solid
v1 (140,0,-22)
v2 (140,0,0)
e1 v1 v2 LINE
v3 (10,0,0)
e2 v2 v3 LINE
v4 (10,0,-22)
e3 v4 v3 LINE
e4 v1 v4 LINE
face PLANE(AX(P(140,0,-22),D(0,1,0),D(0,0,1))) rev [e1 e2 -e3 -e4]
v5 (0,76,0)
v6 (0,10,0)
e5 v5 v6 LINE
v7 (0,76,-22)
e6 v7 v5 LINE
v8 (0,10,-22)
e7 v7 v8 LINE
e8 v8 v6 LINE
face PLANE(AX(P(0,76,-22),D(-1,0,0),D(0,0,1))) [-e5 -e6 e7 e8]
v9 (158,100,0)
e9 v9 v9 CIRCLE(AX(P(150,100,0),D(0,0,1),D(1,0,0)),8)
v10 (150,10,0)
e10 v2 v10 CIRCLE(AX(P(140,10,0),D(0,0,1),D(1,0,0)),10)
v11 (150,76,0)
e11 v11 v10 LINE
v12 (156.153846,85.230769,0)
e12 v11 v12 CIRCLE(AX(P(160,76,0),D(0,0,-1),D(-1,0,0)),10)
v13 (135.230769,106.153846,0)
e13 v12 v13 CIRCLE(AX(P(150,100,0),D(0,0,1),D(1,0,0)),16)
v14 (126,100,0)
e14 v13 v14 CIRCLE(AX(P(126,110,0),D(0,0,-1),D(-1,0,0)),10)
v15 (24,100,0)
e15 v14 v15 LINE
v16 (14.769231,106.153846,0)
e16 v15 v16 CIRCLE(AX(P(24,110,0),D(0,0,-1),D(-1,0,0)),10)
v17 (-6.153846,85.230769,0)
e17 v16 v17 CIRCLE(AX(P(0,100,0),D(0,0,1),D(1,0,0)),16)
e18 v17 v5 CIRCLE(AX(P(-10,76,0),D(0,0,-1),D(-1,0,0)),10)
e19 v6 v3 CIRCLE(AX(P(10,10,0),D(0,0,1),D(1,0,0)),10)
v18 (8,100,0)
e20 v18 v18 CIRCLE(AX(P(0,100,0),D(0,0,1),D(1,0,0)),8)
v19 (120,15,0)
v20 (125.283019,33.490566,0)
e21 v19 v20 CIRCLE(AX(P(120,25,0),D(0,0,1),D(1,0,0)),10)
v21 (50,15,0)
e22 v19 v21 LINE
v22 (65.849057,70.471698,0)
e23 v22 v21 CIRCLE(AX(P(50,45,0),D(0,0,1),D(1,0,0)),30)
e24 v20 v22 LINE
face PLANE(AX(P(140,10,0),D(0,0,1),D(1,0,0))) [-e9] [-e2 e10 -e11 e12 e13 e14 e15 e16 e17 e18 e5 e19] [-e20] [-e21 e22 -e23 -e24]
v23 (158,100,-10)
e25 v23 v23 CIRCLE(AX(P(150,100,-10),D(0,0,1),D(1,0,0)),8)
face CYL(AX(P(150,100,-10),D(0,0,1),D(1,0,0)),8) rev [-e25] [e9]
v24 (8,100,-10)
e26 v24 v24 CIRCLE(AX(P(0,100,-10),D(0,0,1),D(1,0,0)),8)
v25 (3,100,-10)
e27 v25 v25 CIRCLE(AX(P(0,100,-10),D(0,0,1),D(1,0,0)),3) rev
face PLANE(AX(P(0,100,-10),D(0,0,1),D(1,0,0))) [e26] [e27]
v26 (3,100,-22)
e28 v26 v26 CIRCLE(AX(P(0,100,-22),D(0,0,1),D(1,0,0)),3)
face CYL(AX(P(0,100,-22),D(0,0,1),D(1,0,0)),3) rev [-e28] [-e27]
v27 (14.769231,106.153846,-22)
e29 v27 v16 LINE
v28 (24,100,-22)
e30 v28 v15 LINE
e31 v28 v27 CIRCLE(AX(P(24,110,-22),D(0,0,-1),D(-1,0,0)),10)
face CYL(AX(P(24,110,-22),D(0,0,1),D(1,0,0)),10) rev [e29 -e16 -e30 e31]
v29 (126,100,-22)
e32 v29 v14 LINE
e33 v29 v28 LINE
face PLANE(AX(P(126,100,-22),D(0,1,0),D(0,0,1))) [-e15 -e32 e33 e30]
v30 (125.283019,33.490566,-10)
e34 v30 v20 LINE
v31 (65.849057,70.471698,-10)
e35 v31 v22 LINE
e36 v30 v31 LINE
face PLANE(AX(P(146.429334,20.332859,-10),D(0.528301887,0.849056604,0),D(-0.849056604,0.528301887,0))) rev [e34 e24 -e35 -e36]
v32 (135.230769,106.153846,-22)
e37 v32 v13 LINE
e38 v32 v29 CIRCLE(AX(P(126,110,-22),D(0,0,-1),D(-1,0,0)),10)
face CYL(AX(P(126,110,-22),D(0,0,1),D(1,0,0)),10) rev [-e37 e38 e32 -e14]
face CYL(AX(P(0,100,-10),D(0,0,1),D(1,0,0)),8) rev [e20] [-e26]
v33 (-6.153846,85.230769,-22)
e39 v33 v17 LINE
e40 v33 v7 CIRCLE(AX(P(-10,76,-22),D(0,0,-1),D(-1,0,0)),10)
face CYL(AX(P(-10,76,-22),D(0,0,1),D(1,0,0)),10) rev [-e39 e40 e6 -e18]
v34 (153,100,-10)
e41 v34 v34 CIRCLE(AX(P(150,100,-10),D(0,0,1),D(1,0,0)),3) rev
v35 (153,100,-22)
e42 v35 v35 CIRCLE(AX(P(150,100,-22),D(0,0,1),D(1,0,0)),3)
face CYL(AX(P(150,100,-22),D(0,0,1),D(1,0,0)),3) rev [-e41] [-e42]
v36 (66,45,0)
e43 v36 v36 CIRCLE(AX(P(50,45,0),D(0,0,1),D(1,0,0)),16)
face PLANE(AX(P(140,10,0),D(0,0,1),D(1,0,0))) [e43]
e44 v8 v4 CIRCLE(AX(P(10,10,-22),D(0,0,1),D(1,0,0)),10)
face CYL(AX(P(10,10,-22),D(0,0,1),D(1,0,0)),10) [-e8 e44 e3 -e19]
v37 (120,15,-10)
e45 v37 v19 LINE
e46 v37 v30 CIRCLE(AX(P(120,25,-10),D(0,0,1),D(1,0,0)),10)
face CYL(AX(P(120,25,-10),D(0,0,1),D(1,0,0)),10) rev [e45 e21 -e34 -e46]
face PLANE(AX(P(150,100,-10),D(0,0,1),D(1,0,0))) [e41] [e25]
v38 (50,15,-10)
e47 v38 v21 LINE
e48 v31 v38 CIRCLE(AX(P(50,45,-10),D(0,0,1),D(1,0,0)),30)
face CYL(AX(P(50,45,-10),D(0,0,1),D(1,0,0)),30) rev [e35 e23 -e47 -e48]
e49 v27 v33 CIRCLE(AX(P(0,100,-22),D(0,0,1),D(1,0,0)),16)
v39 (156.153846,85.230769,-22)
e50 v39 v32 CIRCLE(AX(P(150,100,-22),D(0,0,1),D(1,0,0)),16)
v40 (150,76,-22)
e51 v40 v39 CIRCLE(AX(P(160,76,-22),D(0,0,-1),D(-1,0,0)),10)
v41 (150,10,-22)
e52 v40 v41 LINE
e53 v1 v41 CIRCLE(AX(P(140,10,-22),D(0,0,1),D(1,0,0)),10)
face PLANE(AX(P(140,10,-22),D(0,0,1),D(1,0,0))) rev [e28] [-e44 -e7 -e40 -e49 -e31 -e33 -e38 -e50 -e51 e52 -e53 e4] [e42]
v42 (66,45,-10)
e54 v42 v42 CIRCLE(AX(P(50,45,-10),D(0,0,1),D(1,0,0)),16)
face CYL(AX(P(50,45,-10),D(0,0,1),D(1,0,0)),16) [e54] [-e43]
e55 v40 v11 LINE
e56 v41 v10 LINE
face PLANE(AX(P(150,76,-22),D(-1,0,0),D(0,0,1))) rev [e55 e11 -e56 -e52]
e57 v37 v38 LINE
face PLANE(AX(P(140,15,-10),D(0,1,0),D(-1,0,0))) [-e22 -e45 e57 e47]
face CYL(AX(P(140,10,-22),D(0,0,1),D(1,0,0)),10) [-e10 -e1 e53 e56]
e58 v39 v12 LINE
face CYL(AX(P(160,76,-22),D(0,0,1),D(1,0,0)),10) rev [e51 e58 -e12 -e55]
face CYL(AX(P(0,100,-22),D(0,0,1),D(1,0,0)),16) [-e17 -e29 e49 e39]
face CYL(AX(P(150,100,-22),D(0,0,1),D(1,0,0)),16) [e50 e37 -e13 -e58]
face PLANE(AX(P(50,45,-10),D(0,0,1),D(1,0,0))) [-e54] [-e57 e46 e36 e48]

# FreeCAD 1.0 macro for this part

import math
import FreeCAD as App
import Part
import Sketcher

V = App.Vector
Q = App.Units.Quantity

doc = App.newDocument("Part")
body = doc.addObject("PartDesign::Body", "Body")

# Sketch on XY plane
sketch1 = body.newObject("Sketcher::SketchObject", "Sketch")
sketch1.AttachmentSupport = (doc.getObject("XY_Plane"), [""])
sketch1.MapMode = "FlatFace"
sketch1.addGeometry([
    Part.LineSegment(V(126, 100, 0), V(24, 100, 0)),  # 0
    Part.ArcOfCircle(Part.Circle(V(24, 110, 0), V(0, 0, 1), 10), math.radians(-157), math.radians(-90)),  # 1
    Part.ArcOfCircle(Part.Circle(V(0, 100, 0), V(0, 0, 1), 16), math.radians(23), math.radians(247)),  # 2
    Part.ArcOfCircle(Part.Circle(V(-10, 76, 0), V(0, 0, 1), 10), math.radians(0), math.radians(67)),  # 3
    Part.LineSegment(V(0, 76, 0), V(0, 10, 0)),  # 4
    Part.ArcOfCircle(Part.Circle(V(10, 10, 0), V(0, 0, 1), 10), math.radians(180), math.radians(270)),  # 5
    Part.LineSegment(V(10, 0, 0), V(140, 0, 0)),  # 6
    Part.ArcOfCircle(Part.Circle(V(140, 10, 0), V(0, 0, 1), 10), math.radians(-90), math.radians(0)),  # 7
    Part.LineSegment(V(150, 10, 0), V(150, 76, 0)),  # 8
    Part.ArcOfCircle(Part.Circle(V(160, 76, 0), V(0, 0, 1), 10), math.radians(113), math.radians(180)),  # 9
    Part.ArcOfCircle(Part.Circle(V(150, 100, 0), V(0, 0, 1), 16), math.radians(-67), math.radians(157)),  # 10
    Part.ArcOfCircle(Part.Circle(V(126, 110, 0), V(0, 0, 1), 10), math.radians(-90), math.radians(-23)),  # 11
    Part.Circle(V(0, 100, 0), V(0, 0, 1), 3),  # 12
    Part.Circle(V(150, 100, 0), V(0, 0, 1), 3),  # 13
], False)
sketch1.addConstraint([
    Sketcher.Constraint("Tangent", 0, 2, 1, 2),
    Sketcher.Constraint("Tangent", 1, 1, 2, 1),
    Sketcher.Constraint("Tangent", 2, 2, 3, 2),
    Sketcher.Constraint("Tangent", 3, 1, 4, 1),
    Sketcher.Constraint("Tangent", 4, 2, 5, 1),
    Sketcher.Constraint("Tangent", 5, 2, 6, 1),
    Sketcher.Constraint("Tangent", 6, 2, 7, 1),
    Sketcher.Constraint("Tangent", 7, 2, 8, 1),
    Sketcher.Constraint("Tangent", 8, 2, 9, 2),
    Sketcher.Constraint("Tangent", 9, 1, 10, 1),
    Sketcher.Constraint("Tangent", 10, 2, 11, 2),
    Sketcher.Constraint("Tangent", 11, 1, 0, 1),
    Sketcher.Constraint("Horizontal", 0),
    Sketcher.Constraint("Vertical", 4),
    Sketcher.Constraint("Horizontal", 6),
    Sketcher.Constraint("Vertical", 8),
    Sketcher.Constraint("Coincident", 12, 3, 2, 3),
    Sketcher.Constraint("Coincident", 13, 3, 10, 3),
    Sketcher.Constraint("Equal", 1, 3),
    Sketcher.Constraint("Equal", 3, 5),
    Sketcher.Constraint("Equal", 5, 7),
    Sketcher.Constraint("Equal", 7, 9),
    Sketcher.Constraint("Equal", 2, 10),
    Sketcher.Constraint("Equal", 9, 11),
    Sketcher.Constraint("Equal", 12, 13),
    Sketcher.Constraint("PointOnObject", 2, 3, -2),
    Sketcher.Constraint("PointOnObject", 3, 1, -2),
    Sketcher.Constraint("PointOnObject", 5, 2, -1),
    Sketcher.Constraint("Horizontal", 3, 3, 9, 3),
    Sketcher.Constraint("Horizontal", 2, 3, 10, 3),
    Sketcher.Constraint("Horizontal", 13, 3, 0, 2),
    Sketcher.Constraint("Diameter", 12, Q("6 mm")),
    Sketcher.Constraint("Radius", 1, Q("10 mm")),
    Sketcher.Constraint("Radius", 2, Q("16 mm")),
    Sketcher.Constraint("DistanceX", 0, 2, 0, 1, Q("102 mm")),
    Sketcher.Constraint("DistanceY", 4, 2, 4, 1, Q("66 mm")),
])
pad1 = body.newObject("PartDesign::Pad", "Pad")
pad1.Profile = sketch1
pad1.Length = 22
pad1.Reversed = True

# Sketch on XY plane
sketch2 = body.newObject("Sketcher::SketchObject", "Sketch001")
sketch2.AttachmentSupport = (doc.getObject("XY_Plane"), [""])
sketch2.MapMode = "FlatFace"
sketch2.addGeometry([
    Part.LineSegment(V(125, 33, 0), V(66, 70, 0)),  # 0
    Part.ArcOfCircle(Part.Circle(V(50, 45, 0), V(0, 0, 1), 30), math.radians(58), math.radians(270)),  # 1
    Part.LineSegment(V(50, 15, 0), V(120, 15, 0)),  # 2
    Part.ArcOfCircle(Part.Circle(V(120, 25, 0), V(0, 0, 1), 10), math.radians(-90), math.radians(58)),  # 3
    Part.Circle(V(50, 45, 0), V(0, 0, 1), 16),  # 4
], False)
sketch2.addConstraint([
    Sketcher.Constraint("Tangent", 0, 2, 1, 1),
    Sketcher.Constraint("Tangent", 1, 2, 2, 1),
    Sketcher.Constraint("Tangent", 2, 2, 3, 1),
    Sketcher.Constraint("Tangent", 3, 2, 0, 1),
    Sketcher.Constraint("Horizontal", 2),
    Sketcher.Constraint("Coincident", 4, 3, 1, 3),
    Sketcher.Constraint("Diameter", 4, Q("32 mm")),
    Sketcher.Constraint("Radius", 1, Q("30 mm")),
    Sketcher.Constraint("Radius", 3, Q("10 mm")),
    Sketcher.Constraint("DistanceX", 2, 1, 2, 2, Q("70 mm")),
    Sketcher.Constraint("DistanceX", -1, 1, 1, 3, Q("50 mm")),
    Sketcher.Constraint("DistanceY", -1, 1, 1, 3, Q("45 mm")),
])
pocket1 = body.newObject("PartDesign::Pocket", "Pocket")
pocket1.Profile = sketch2
pocket1.Length = 10

# Sketch on XY plane
sketch3 = body.newObject("Sketcher::SketchObject", "Sketch002")
sketch3.AttachmentSupport = (doc.getObject("XY_Plane"), [""])
sketch3.MapMode = "FlatFace"
sketch3.addGeometry([
    Part.Circle(V(0, 100, 0), V(0, 0, 1), 8),
    Part.Circle(V(150, 100, 0), V(0, 0, 1), 8),
], False)
sketch3.addConstraint([
    Sketcher.Constraint("Equal", 0, 1),
    Sketcher.Constraint("PointOnObject", 0, 3, -2),
    Sketcher.Constraint("Horizontal", 0, 3, 1, 3),
    Sketcher.Constraint("Diameter", 0, Q("16 mm")),
    Sketcher.Constraint("DistanceY", -1, 1, 0, 3, Q("100 mm")),
    Sketcher.Constraint("DistanceX", -1, 1, 1, 3, Q("150 mm")),
])
pocket2 = body.newObject("PartDesign::Pocket", "Pocket001")
pocket2.Profile = sketch3
pocket2.Length = 10

doc.recompute()
